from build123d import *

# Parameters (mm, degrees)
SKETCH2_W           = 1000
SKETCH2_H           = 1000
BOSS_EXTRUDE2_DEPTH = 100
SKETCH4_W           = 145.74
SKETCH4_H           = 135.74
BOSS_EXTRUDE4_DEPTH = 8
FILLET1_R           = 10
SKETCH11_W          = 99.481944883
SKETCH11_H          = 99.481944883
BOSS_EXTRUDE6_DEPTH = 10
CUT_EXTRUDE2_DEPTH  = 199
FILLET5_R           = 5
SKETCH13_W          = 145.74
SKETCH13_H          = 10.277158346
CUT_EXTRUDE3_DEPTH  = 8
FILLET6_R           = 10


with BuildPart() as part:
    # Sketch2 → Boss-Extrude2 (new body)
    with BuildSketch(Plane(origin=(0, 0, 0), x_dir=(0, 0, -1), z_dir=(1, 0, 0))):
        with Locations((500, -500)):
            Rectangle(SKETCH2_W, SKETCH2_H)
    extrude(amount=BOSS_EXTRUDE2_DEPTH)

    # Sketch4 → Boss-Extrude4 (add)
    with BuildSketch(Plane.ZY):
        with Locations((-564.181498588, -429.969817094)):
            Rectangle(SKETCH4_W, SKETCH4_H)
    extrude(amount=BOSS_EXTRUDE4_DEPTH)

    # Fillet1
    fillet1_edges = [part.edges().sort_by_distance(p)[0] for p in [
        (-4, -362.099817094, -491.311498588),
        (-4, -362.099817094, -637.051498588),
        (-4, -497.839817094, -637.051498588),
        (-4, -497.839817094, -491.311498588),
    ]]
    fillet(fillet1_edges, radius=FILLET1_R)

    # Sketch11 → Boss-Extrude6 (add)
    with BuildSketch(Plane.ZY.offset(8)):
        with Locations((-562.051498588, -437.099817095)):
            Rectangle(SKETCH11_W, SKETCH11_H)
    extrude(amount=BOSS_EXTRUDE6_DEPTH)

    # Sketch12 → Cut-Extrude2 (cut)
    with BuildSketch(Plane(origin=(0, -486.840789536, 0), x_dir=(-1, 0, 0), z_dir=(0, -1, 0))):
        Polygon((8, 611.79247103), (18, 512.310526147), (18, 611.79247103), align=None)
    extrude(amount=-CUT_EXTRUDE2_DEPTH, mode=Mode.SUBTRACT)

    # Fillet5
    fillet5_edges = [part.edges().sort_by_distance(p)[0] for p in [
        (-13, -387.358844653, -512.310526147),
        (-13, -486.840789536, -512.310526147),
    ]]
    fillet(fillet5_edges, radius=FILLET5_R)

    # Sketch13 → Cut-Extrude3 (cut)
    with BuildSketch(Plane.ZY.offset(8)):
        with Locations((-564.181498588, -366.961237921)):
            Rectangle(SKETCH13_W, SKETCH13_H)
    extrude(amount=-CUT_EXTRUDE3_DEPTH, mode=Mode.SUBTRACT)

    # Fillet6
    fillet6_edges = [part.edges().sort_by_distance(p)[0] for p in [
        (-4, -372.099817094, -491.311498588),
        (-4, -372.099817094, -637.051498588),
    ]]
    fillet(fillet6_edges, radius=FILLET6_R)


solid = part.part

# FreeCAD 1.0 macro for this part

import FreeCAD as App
import Part
import Sketcher
from FreeCAD import Vector


def edges_at(feature, points):
    """Names of the edges that pass closest to the given points."""
    edges = feature.Shape.Edges
    near = lambda p: min(range(len(edges)), key=lambda i: edges[i].distToShape(Part.Vertex(*p))[0])
    return sorted({f"Edge{near(p) + 1}" for p in points})

doc = App.newDocument("Part")
params = doc.addObject("Spreadsheet::Sheet", "Params")
for row, (alias, value) in enumerate([
    ("sketch1_width", "1000 mm"),
    ("pad1_length", "100 mm"),
    ("sketch2_width", "135.74 mm"),
    ("sketch2_height", "145.74 mm"),
    ("pad2_length", "8 mm"),
    ("fillet_radius", "10 mm"),
    ("pad3_length", "10 mm"),
    ("sketch4_width", "10 mm"),
    ("pocket1_length", "199 mm"),
    ("fillet2_radius", "5 mm"),
    ("sketch5_height", "145.74 mm"),
    ("pocket2_length", "8 mm"),
    ("fillet3_radius", "10 mm"),
], start=1):
    params.set(f"A{row}", alias)
    params.set(f"B{row}", "=" + value)
    params.setAlias(f"B{row}", alias)

body = doc.addObject("PartDesign::Body", "Body")

sketch1 = body.newObject("Sketcher::SketchObject", "Sketch")
sketch1.AttachmentSupport = (doc.getObject("YZ_Plane"), [""])
sketch1.MapMode = "FlatFace"
sketch1.addGeometry(Part.LineSegment(Vector(0, 0, 0), Vector(-1000, 0, 0)), False)
sketch1.addGeometry(Part.LineSegment(Vector(-1000, 0, 0), Vector(-1000, -1000, 0)), False)
sketch1.addGeometry(Part.LineSegment(Vector(-1000, -1000, 0), Vector(0, -1000, 0)), False)
sketch1.addGeometry(Part.LineSegment(Vector(0, -1000, 0), Vector(0, 0, 0)), False)
sketch1.addConstraint(Sketcher.Constraint("Coincident", 0, 2, 1, 1))
sketch1.addConstraint(Sketcher.Constraint("Coincident", 1, 2, 2, 1))
sketch1.addConstraint(Sketcher.Constraint("Coincident", 2, 2, 3, 1))
sketch1.addConstraint(Sketcher.Constraint("Coincident", 3, 2, 0, 1))
sketch1.addConstraint(Sketcher.Constraint("Horizontal", 0))
sketch1.addConstraint(Sketcher.Constraint("Vertical", 1))
sketch1.addConstraint(Sketcher.Constraint("Horizontal", 2))
sketch1.addConstraint(Sketcher.Constraint("Vertical", 3))
sketch1.addConstraint(Sketcher.Constraint("Coincident", 3, 2, -1, 1))
sketch1.addConstraint(Sketcher.Constraint("Equal", 2, 1))
sketch1.addConstraint(Sketcher.Constraint("DistanceX", 0, 2, 0, 1, 1000.0))
sketch1.setExpression("Constraints[10]", "Params.sketch1_width")
pad1 = body.newObject("PartDesign::Pad", "Pad")
pad1.Profile = sketch1
pad1.setExpression("Length", "Params.pad1_length")

sketch2 = body.newObject("Sketcher::SketchObject", "Sketch001")
sketch2.AttachmentSupport = (doc.getObject("YZ_Plane"), [""])
sketch2.MapMode = "FlatFace"
sketch2.addGeometry(Part.LineSegment(Vector(-362, -637, 0), Vector(-498, -637, 0)), False)
sketch2.addGeometry(Part.LineSegment(Vector(-498, -637, 0), Vector(-498, -491, 0)), False)
sketch2.addGeometry(Part.LineSegment(Vector(-498, -491, 0), Vector(-362, -491, 0)), False)
sketch2.addGeometry(Part.LineSegment(Vector(-362, -491, 0), Vector(-362, -637, 0)), False)
sketch2.addConstraint(Sketcher.Constraint("Coincident", 0, 2, 1, 1))
sketch2.addConstraint(Sketcher.Constraint("Coincident", 1, 2, 2, 1))
sketch2.addConstraint(Sketcher.Constraint("Coincident", 2, 2, 3, 1))
sketch2.addConstraint(Sketcher.Constraint("Coincident", 3, 2, 0, 1))
sketch2.addConstraint(Sketcher.Constraint("Horizontal", 0))
sketch2.addConstraint(Sketcher.Constraint("Vertical", 1))
sketch2.addConstraint(Sketcher.Constraint("Horizontal", 2))
sketch2.addConstraint(Sketcher.Constraint("Vertical", 3))
sketch2.addConstraint(Sketcher.Constraint("DistanceX", 0, 2, 0, 1, 135.74))
sketch2.addConstraint(Sketcher.Constraint("DistanceY", 1, 1, 1, 2, 145.74))
sketch2.addConstraint(Sketcher.Constraint("DistanceY", 0, 2, -1, 1, 637.051499))
sketch2.addConstraint(Sketcher.Constraint("DistanceX", 0, 2, -1, 1, 497.839817))
sketch2.setExpression("Constraints[8]", "Params.sketch2_width")
sketch2.setExpression("Constraints[9]", "Params.sketch2_height")
pad2 = body.newObject("PartDesign::Pad", "Pad001")
pad2.Profile = sketch2
pad2.setExpression("Length", "Params.pad2_length")
pad2.Reversed = True
doc.recompute()

fillet = body.newObject("PartDesign::Fillet", "Fillet")
fillet.Base = (pad2, edges_at(pad2, [
    (-4, -362.1, -491.311),
    (-4, -362.1, -637.051),
    (-4, -497.84, -637.051),
    (-4, -497.84, -491.311),
]))
fillet.setExpression("Radius", "Params.fillet_radius")

sketch3 = body.newObject("Sketcher::SketchObject", "Sketch002")
sketch3.AttachmentSupport = (doc.getObject("YZ_Plane"), [""])
sketch3.MapMode = "FlatFace"
sketch3.AttachmentOffset = App.Placement(Vector(0, 0, -8), App.Rotation())
sketch3.addGeometry(Part.LineSegment(Vector(-387, -612, 0), Vector(-487, -612, 0)), False)
sketch3.addGeometry(Part.LineSegment(Vector(-487, -612, 0), Vector(-487, -512, 0)), False)
sketch3.addGeometry(Part.LineSegment(Vector(-487, -512, 0), Vector(-387, -512, 0)), False)
sketch3.addGeometry(Part.LineSegment(Vector(-387, -512, 0), Vector(-387, -612, 0)), False)
sketch3.addConstraint(Sketcher.Constraint("Coincident", 0, 2, 1, 1))
sketch3.addConstraint(Sketcher.Constraint("Coincident", 1, 2, 2, 1))
sketch3.addConstraint(Sketcher.Constraint("Coincident", 2, 2, 3, 1))
sketch3.addConstraint(Sketcher.Constraint("Coincident", 3, 2, 0, 1))
sketch3.addConstraint(Sketcher.Constraint("Horizontal", 0))
sketch3.addConstraint(Sketcher.Constraint("Vertical", 1))
sketch3.addConstraint(Sketcher.Constraint("Horizontal", 2))
sketch3.addConstraint(Sketcher.Constraint("Vertical", 3))
sketch3.addConstraint(Sketcher.Constraint("Equal", 2, 1))
sketch3.addConstraint(Sketcher.Constraint("DistanceX", 0, 2, 0, 1, 99.481945))
sketch3.addConstraint(Sketcher.Constraint("DistanceX", 0, 2, -1, 1, 486.84079))
sketch3.addConstraint(Sketcher.Constraint("DistanceY", 0, 2, -1, 1, 611.792471))
pad3 = body.newObject("PartDesign::Pad", "Pad002")
pad3.Profile = sketch3
pad3.setExpression("Length", "Params.pad3_length")
pad3.Reversed = True

sketch4 = body.newObject("Sketcher::SketchObject", "Sketch003")
sketch4.AttachmentSupport = (doc.getObject("XZ_Plane"), [""])
sketch4.MapMode = "FlatFace"
sketch4.AttachmentOffset = App.Placement(Vector(0, 0, 486.84079), App.Rotation())
sketch4.addGeometry(Part.LineSegment(Vector(-8, -612, 0), Vector(-18, -512, 0)), False)
sketch4.addGeometry(Part.LineSegment(Vector(-18, -512, 0), Vector(-18, -612, 0)), False)
sketch4.addGeometry(Part.LineSegment(Vector(-18, -612, 0), Vector(-8, -612, 0)), False)
sketch4.addConstraint(Sketcher.Constraint("Coincident", 0, 2, 1, 1))
sketch4.addConstraint(Sketcher.Constraint("Coincident", 1, 2, 2, 1))
sketch4.addConstraint(Sketcher.Constraint("Coincident", 2, 2, 0, 1))
sketch4.addConstraint(Sketcher.Constraint("Vertical", 1))
sketch4.addConstraint(Sketcher.Constraint("Horizontal", 2))
sketch4.addConstraint(Sketcher.Constraint("DistanceX", 2, 1, 2, 2, 10.0))
sketch4.addConstraint(Sketcher.Constraint("DistanceX", 0, 2, -1, 1, 18.0))
sketch4.addConstraint(Sketcher.Constraint("DistanceY", 1, 2, 1, 1, 99.481945))
sketch4.addConstraint(Sketcher.Constraint("DistanceY", 1, 2, -1, 1, 611.792471))
sketch4.setExpression("Constraints[5]", "Params.sketch4_width")
pocket1 = body.newObject("PartDesign::Pocket", "Pocket")
pocket1.Profile = sketch4
pocket1.setExpression("Length", "Params.pocket1_length")
doc.recompute()

fillet2 = body.newObject("PartDesign::Fillet", "Fillet001")
fillet2.Base = (pocket1, edges_at(pocket1, [(-13, -387.359, -512.311), (-13, -486.841, -512.311)]))
fillet2.setExpression("Radius", "Params.fillet2_radius")

sketch5 = body.newObject("Sketcher::SketchObject", "Sketch004")
sketch5.AttachmentSupport = (doc.getObject("YZ_Plane"), [""])
sketch5.MapMode = "FlatFace"
sketch5.AttachmentOffset = App.Placement(Vector(0, 0, -8), App.Rotation())
sketch5.addGeometry(Part.LineSegment(Vector(-362, -637, 0), Vector(-372, -637, 0)), False)
sketch5.addGeometry(Part.LineSegment(Vector(-372, -637, 0), Vector(-372, -491, 0)), False)
sketch5.addGeometry(Part.LineSegment(Vector(-372, -491, 0), Vector(-362, -491, 0)), False)
sketch5.addGeometry(Part.LineSegment(Vector(-362, -491, 0), Vector(-362, -637, 0)), False)
sketch5.addConstraint(Sketcher.Constraint("Coincident", 0, 2, 1, 1))
sketch5.addConstraint(Sketcher.Constraint("Coincident", 1, 2, 2, 1))
sketch5.addConstraint(Sketcher.Constraint("Coincident", 2, 2, 3, 1))
sketch5.addConstraint(Sketcher.Constraint("Coincident", 3, 2, 0, 1))
sketch5.addConstraint(Sketcher.Constraint("Horizontal", 0))
sketch5.addConstraint(Sketcher.Constraint("Vertical", 1))
sketch5.addConstraint(Sketcher.Constraint("Horizontal", 2))
sketch5.addConstraint(Sketcher.Constraint("Vertical", 3))
sketch5.addConstraint(Sketcher.Constraint("DistanceY", 1, 1, 1, 2, 145.74))
sketch5.addConstraint(Sketcher.Constraint("DistanceX", 0, 2, 0, 1, 10.277158))
sketch5.addConstraint(Sketcher.Constraint("DistanceY", 0, 2, -1, 1, 637.051499))
sketch5.addConstraint(Sketcher.Constraint("DistanceX", 2, 2, -1, 1, 361.822659))
sketch5.setExpression("Constraints[8]", "Params.sketch5_height")
pocket2 = body.newObject("PartDesign::Pocket", "Pocket001")
pocket2.Profile = sketch5
pocket2.setExpression("Length", "Params.pocket2_length")
pocket2.Reversed = True
doc.recompute()

fillet3 = body.newObject("PartDesign::Fillet", "Fillet002")
fillet3.Base = (pocket2, edges_at(pocket2, [(-4, -372.1, -491.311), (-4, -372.1, -637.051)]))
fillet3.setExpression("Radius", "Params.fillet3_radius")

doc.recompute()
